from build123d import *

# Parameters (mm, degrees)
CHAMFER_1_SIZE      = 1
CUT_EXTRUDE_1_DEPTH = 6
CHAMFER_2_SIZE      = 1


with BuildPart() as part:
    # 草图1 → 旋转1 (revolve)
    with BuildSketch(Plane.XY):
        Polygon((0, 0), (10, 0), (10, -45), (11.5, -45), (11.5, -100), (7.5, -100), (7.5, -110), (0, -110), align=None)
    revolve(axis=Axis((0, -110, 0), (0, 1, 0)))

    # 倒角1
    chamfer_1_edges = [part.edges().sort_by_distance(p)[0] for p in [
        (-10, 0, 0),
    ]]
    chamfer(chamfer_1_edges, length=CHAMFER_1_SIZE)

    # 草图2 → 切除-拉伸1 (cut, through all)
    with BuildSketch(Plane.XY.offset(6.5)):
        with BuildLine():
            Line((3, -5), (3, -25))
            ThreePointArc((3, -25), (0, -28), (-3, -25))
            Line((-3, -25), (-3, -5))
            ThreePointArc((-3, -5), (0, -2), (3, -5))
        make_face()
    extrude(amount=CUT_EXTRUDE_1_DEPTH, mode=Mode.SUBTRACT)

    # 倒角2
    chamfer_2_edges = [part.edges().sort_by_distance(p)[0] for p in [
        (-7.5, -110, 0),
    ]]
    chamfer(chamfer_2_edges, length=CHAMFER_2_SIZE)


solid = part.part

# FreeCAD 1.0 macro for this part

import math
import FreeCAD as App
import Part
import Sketcher


def edges_at(feature, points):
    """Names of the edges that pass closest to the given points."""
    edges = feature.Shape.Edges
    near = lambda p: min(range(len(edges)), key=lambda i: edges[i].distToShape(Part.Vertex(*p))[0])
    return sorted({f"Edge{near(p) + 1}" for p in points})

doc = App.newDocument("Part")
params = doc.addObject("Spreadsheet::Sheet", "Params")
for row, (alias, value) in enumerate([
    ("sketch1_width", "10 mm"),
    ("sketch1_width2", "4 mm"),
    ("sketch1_height", "110 mm"),
    ("sketch1_height2", "55 mm"),
    ("sketch1_width3", "7.5 mm"),
    ("revolution_angle", "360 deg"),
    ("chamfer_size", "1 mm"),
    ("sketch2_radius", "3 mm"),
    ("sketch2_height", "20 mm"),
    ("chamfer2_size", "1 mm"),
], start=1):
    params.set(f"A{row}", alias)
    params.set(f"B{row}", "=" + value)
    params.setAlias(f"B{row}", alias)

body = doc.addObject("PartDesign::Body", "Body")

# Sketch on XY plane
sketch1 = doc.addObject("Sketcher::SketchObject", "Sketch")
body.addObject(sketch1)
sketch1.AttachmentSupport = (doc.XY_Plane, [""])
sketch1.MapMode = "FlatFace"
sketch1.addGeometry(Part.LineSegment(App.Vector(10, 0, 0), App.Vector(0, 0, 0)), False)
sketch1.addGeometry(Part.LineSegment(App.Vector(0, 0, 0), App.Vector(0, -110, 0)), False)
sketch1.addGeometry(Part.LineSegment(App.Vector(0, -110, 0), App.Vector(7.5, -110, 0)), False)
sketch1.addGeometry(Part.LineSegment(App.Vector(7.5, -110, 0), App.Vector(7.5, -100, 0)), False)
sketch1.addGeometry(Part.LineSegment(App.Vector(7.5, -100, 0), App.Vector(11.5, -100, 0)), False)
sketch1.addGeometry(Part.LineSegment(App.Vector(11.5, -100, 0), App.Vector(11.5, -45, 0)), False)
sketch1.addGeometry(Part.LineSegment(App.Vector(11.5, -45, 0), App.Vector(10, -45, 0)), False)
sketch1.addGeometry(Part.LineSegment(App.Vector(10, -45, 0), App.Vector(10, 0, 0)), False)
sketch1.addConstraint(Sketcher.Constraint("Coincident", 0, 2, 1, 1))
sketch1.addConstraint(Sketcher.Constraint("Coincident", 1, 2, 2, 1))
sketch1.addConstraint(Sketcher.Constraint("Coincident", 2, 2, 3, 1))
sketch1.addConstraint(Sketcher.Constraint("Coincident", 3, 2, 4, 1))
sketch1.addConstraint(Sketcher.Constraint("Coincident", 4, 2, 5, 1))
sketch1.addConstraint(Sketcher.Constraint("Coincident", 5, 2, 6, 1))
sketch1.addConstraint(Sketcher.Constraint("Coincident", 6, 2, 7, 1))
sketch1.addConstraint(Sketcher.Constraint("Coincident", 7, 2, 0, 1))
sketch1.addConstraint(Sketcher.Constraint("Horizontal", 0))
sketch1.addConstraint(Sketcher.Constraint("Vertical", 1))
sketch1.addConstraint(Sketcher.Constraint("Horizontal", 2))
sketch1.addConstraint(Sketcher.Constraint("Vertical", 3))
sketch1.addConstraint(Sketcher.Constraint("Horizontal", 4))
sketch1.addConstraint(Sketcher.Constraint("Vertical", 5))
sketch1.addConstraint(Sketcher.Constraint("Horizontal", 6))
sketch1.addConstraint(Sketcher.Constraint("Vertical", 7))
sketch1.addConstraint(Sketcher.Constraint("Coincident", 0, 2, -1, 1))
sketch1.addConstraint(Sketcher.Constraint("Equal", 0, 3))
sketch1.addConstraint(Sketcher.Constraint("DistanceX", 0, 2, 0, 1, 10.0))
sketch1.addConstraint(Sketcher.Constraint("DistanceX", 4, 1, 4, 2, 4.0))
sketch1.addConstraint(Sketcher.Constraint("DistanceY", 1, 2, 1, 1, 110.0))
sketch1.addConstraint(Sketcher.Constraint("DistanceY", 5, 1, 5, 2, 55.0))
sketch1.addConstraint(Sketcher.Constraint("DistanceX", 2, 1, 2, 2, 7.5))
sketch1.setExpression("Constraints[18]", "Params.sketch1_width")
sketch1.setExpression("Constraints[19]", "Params.sketch1_width2")
sketch1.setExpression("Constraints[20]", "Params.sketch1_height")
sketch1.setExpression("Constraints[21]", "Params.sketch1_height2")
sketch1.setExpression("Constraints[22]", "Params.sketch1_width3")
revolution = doc.addObject("PartDesign::Revolution", "Revolution")
body.addObject(revolution)
revolution.Profile = sketch1
revolution.ReferenceAxis = (sketch1, ["V_Axis"])
revolution.setExpression("Angle", "Params.revolution_angle")
doc.recompute()

chamfer = doc.addObject("PartDesign::Chamfer", "Chamfer")
body.addObject(chamfer)
chamfer.Base = (revolution, edges_at(revolution, [(-10, 0, 0)]))
chamfer.setExpression("Size", "Params.chamfer_size")

# Sketch on XY plane
sketch2 = doc.addObject("Sketcher::SketchObject", "Sketch001")
body.addObject(sketch2)
sketch2.AttachmentSupport = (doc.XY_Plane, [""])
sketch2.MapMode = "FlatFace"
sketch2.AttachmentOffset = App.Placement(App.Vector(0, 0, 6.5), App.Rotation())
sketch2.addGeometry(Part.LineSegment(App.Vector(3, -25, 0), App.Vector(3, -5, 0)), False)
sketch2.addGeometry(Part.ArcOfCircle(Part.Circle(App.Vector(0, -5, 0), App.Vector(0, 0, 1), 3), math.radians(0), math.radians(180)), False)
sketch2.addGeometry(Part.LineSegment(App.Vector(-3, -5, 0), App.Vector(-3, -25, 0)), False)
sketch2.addGeometry(Part.ArcOfCircle(Part.Circle(App.Vector(0, -25, 0), App.Vector(0, 0, 1), 3), math.radians(180), math.radians(360)), False)
sketch2.addConstraint(Sketcher.Constraint("Tangent", 0, 2, 1, 1))
sketch2.addConstraint(Sketcher.Constraint("Tangent", 1, 2, 2, 1))
sketch2.addConstraint(Sketcher.Constraint("Tangent", 2, 2, 3, 1))
sketch2.addConstraint(Sketcher.Constraint("Tangent", 3, 2, 0, 1))
sketch2.addConstraint(Sketcher.Constraint("Vertical", 0))
sketch2.addConstraint(Sketcher.Constraint("Vertical", 2))
sketch2.addConstraint(Sketcher.Constraint("PointOnObject", 1, 3, -2))
sketch2.addConstraint(Sketcher.Constraint("Radius", 1, 3.0))
sketch2.addConstraint(Sketcher.Constraint("DistanceY", 0, 1, 0, 2, 20.0))
sketch2.addConstraint(Sketcher.Constraint("DistanceY", 1, 3, -1, 1, 5.0))
sketch2.setExpression("Constraints[7]", "Params.sketch2_radius")
sketch2.setExpression("Constraints[8]", "Params.sketch2_height")
pocket1 = doc.addObject("PartDesign::Pocket", "Pocket")
body.addObject(pocket1)
pocket1.Profile = sketch2
pocket1.Type = "ThroughAll"
pocket1.Reversed = True
doc.recompute()

chamfer2 = doc.addObject("PartDesign::Chamfer", "Chamfer001")
body.addObject(chamfer2)
chamfer2.Base = (pocket1, edges_at(pocket1, [(-7.5, -110, 0)]))
chamfer2.setExpression("Size", "Params.chamfer2_size")

doc.recompute()
